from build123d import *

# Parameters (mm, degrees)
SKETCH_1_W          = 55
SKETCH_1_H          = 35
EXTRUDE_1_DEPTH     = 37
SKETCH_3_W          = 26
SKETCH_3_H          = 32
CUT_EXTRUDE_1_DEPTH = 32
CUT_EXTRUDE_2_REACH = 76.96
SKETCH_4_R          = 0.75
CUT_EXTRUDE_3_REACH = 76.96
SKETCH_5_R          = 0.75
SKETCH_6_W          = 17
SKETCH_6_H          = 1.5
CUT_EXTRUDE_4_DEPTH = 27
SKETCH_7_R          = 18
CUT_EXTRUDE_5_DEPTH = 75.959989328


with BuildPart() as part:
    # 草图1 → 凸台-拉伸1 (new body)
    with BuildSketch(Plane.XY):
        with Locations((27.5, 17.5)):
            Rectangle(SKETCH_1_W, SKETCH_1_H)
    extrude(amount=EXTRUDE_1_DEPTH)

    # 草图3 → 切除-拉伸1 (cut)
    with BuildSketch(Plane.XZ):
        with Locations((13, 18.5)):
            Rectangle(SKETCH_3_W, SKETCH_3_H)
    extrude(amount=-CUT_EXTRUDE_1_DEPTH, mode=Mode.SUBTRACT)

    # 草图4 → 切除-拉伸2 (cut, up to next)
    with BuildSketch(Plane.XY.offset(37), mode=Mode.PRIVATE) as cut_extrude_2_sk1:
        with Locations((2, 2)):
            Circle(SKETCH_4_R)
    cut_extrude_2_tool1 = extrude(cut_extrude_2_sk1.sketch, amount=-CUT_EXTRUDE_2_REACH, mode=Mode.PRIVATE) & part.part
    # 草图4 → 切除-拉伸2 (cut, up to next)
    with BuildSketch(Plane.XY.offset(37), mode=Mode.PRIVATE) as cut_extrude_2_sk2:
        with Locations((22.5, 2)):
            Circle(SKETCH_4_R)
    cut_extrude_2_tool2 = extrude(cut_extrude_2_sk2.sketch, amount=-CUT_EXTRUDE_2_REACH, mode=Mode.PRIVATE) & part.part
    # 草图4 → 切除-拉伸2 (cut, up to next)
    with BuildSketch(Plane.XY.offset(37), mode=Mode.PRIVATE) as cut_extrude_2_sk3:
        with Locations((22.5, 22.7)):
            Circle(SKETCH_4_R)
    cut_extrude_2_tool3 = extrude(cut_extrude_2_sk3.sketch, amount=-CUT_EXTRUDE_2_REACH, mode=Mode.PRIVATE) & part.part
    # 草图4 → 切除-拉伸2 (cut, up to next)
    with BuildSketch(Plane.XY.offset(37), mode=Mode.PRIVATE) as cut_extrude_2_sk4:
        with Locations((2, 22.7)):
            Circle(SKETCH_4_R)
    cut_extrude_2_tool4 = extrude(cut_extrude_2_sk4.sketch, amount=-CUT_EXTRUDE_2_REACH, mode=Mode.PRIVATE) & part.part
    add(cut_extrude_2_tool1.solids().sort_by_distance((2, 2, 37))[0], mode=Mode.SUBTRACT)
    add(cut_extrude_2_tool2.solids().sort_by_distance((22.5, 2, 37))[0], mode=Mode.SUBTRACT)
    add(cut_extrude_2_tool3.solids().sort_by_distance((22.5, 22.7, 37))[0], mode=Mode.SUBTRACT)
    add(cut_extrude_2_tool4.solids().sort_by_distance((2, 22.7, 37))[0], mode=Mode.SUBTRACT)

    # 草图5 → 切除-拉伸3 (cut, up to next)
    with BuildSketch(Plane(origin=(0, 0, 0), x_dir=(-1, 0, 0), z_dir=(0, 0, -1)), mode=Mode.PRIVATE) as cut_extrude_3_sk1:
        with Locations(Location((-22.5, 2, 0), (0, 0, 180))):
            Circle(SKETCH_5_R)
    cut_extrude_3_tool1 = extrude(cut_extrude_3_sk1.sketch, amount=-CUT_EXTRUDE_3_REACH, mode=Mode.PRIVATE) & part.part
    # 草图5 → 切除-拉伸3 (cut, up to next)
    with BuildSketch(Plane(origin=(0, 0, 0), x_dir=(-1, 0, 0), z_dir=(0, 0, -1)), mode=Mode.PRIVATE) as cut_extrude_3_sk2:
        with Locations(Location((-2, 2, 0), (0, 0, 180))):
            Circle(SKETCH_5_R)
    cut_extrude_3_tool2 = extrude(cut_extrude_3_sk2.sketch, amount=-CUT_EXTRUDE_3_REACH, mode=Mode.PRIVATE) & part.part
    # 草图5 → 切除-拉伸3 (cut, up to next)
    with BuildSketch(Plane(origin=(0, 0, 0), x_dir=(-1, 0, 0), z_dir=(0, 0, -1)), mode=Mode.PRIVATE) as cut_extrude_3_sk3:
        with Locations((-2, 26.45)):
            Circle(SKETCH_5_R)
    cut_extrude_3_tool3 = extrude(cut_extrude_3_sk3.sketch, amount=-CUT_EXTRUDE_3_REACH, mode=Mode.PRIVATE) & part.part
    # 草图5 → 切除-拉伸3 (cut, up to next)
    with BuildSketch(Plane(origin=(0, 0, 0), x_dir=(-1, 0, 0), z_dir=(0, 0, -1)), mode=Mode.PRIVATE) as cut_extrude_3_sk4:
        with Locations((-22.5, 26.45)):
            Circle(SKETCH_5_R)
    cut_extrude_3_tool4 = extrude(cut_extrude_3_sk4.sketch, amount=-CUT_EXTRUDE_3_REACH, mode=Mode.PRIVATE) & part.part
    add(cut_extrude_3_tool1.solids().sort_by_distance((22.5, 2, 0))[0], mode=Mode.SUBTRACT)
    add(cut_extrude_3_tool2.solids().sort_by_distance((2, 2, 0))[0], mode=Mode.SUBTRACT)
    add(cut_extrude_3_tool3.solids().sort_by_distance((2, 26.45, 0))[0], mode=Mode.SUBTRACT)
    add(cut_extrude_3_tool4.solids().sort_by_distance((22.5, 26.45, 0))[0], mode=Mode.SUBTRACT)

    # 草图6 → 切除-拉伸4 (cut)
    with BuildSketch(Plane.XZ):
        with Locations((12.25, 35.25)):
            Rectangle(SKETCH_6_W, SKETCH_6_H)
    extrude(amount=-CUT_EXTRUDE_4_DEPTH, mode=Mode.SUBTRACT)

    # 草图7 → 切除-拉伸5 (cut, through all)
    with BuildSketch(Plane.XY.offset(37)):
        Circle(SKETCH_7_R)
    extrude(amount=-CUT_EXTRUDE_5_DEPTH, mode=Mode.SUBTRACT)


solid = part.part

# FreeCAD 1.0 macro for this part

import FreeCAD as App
import Part
import Sketcher

doc = App.newDocument("Part")
params = doc.addObject("Spreadsheet::Sheet", "Params")
for row, (alias, value) in enumerate([
    ("sketch1_width", "55 mm"),
    ("sketch1_height", "35 mm"),
    ("pad1_length", "37 mm"),
    ("sketch2_width", "26 mm"),
    ("sketch2_height", "32 mm"),
    ("pocket1_length", "32 mm"),
    ("sketch3_diameter", "1.5 mm"),
    ("sketch4_diameter", "1.5 mm"),
    ("sketch5_diameter", "1.5 mm"),
    ("sketch6_diameter", "1.5 mm"),
    ("sketch7_diameter", "1.5 mm"),
    ("sketch8_diameter", "1.5 mm"),
    ("sketch9_diameter", "1.5 mm"),
    ("sketch10_diameter", "1.5 mm"),
    ("sketch11_width", "17 mm"),
    ("sketch11_height", "1.5 mm"),
    ("pocket10_length", "27 mm"),
    ("sketch12_diameter", "36 mm"),
], start=1):
    params.set(f"A{row}", alias)
    params.set(f"B{row}", "=" + value)
    params.setAlias(f"B{row}", alias)

body = doc.addObject("PartDesign::Body", "Body")

sketch1 = body.newObject("Sketcher::SketchObject", "Sketch")
sketch1.AttachmentSupport = (doc.getObject("XY_Plane"), [""])
sketch1.MapMode = "FlatFace"
sketch1.addGeometry([
    Part.LineSegment(App.Vector(0, 35, 0), App.Vector(0, 0, 0)),
    Part.LineSegment(App.Vector(0, 0, 0), App.Vector(55, 0, 0)),
    Part.LineSegment(App.Vector(55, 0, 0), App.Vector(55, 35, 0)),
    Part.LineSegment(App.Vector(55, 35, 0), App.Vector(0, 35, 0)),
], False)
sketch1.addConstraint([
    Sketcher.Constraint("Coincident", 0, 2, 1, 1),
    Sketcher.Constraint("Coincident", 1, 2, 2, 1),
    Sketcher.Constraint("Coincident", 2, 2, 3, 1),
    Sketcher.Constraint("Coincident", 3, 2, 0, 1),
    Sketcher.Constraint("Vertical", 0),
    Sketcher.Constraint("Horizontal", 1),
    Sketcher.Constraint("Vertical", 2),
    Sketcher.Constraint("Horizontal", 3),
    Sketcher.Constraint("Coincident", 0, 2, -1, 1),
    Sketcher.Constraint("DistanceX", 1, 1, 1, 2, 55.0),
    Sketcher.Constraint("DistanceY", 0, 2, 0, 1, 35.0),
])
sketch1.setExpression("Constraints[9]", "Params.sketch1_width")
sketch1.setExpression("Constraints[10]", "Params.sketch1_height")
pad1 = body.newObject("PartDesign::Pad", "Pad")
pad1.Profile = sketch1
pad1.setExpression("Length", "Params.pad1_length")

sketch2 = body.newObject("Sketcher::SketchObject", "Sketch001")
sketch2.AttachmentSupport = (doc.getObject("XZ_Plane"), [""])
sketch2.MapMode = "FlatFace"
sketch2.addGeometry([
    Part.LineSegment(App.Vector(0, 34, 0), App.Vector(0, 2, 0)),
    Part.LineSegment(App.Vector(0, 2, 0), App.Vector(26, 2, 0)),
    Part.LineSegment(App.Vector(26, 2, 0), App.Vector(26, 34, 0)),
    Part.LineSegment(App.Vector(26, 34, 0), App.Vector(0, 34, 0)),
], False)
sketch2.addConstraint([
    Sketcher.Constraint("Coincident", 0, 2, 1, 1),
    Sketcher.Constraint("Coincident", 1, 2, 2, 1),
    Sketcher.Constraint("Coincident", 2, 2, 3, 1),
    Sketcher.Constraint("Coincident", 3, 2, 0, 1),
    Sketcher.Constraint("Vertical", 0),
    Sketcher.Constraint("Horizontal", 1),
    Sketcher.Constraint("Vertical", 2),
    Sketcher.Constraint("Horizontal", 3),
    Sketcher.Constraint("PointOnObject", 0, 2, -2),
    Sketcher.Constraint("DistanceX", 1, 1, 1, 2, 26.0),
    Sketcher.Constraint("DistanceY", 0, 2, 0, 1, 32.0),
    Sketcher.Constraint("DistanceY", -1, 1, 0, 2, 2.5),
])
sketch2.setExpression("Constraints[9]", "Params.sketch2_width")
sketch2.setExpression("Constraints[10]", "Params.sketch2_height")
pocket1 = body.newObject("PartDesign::Pocket", "Pocket")
pocket1.Profile = sketch2
pocket1.setExpression("Length", "Params.pocket1_length")

sketch3 = body.newObject("Sketcher::SketchObject", "Sketch002")
sketch3.AttachmentSupport = (doc.getObject("XY_Plane"), [""])
sketch3.MapMode = "FlatFace"
sketch3.AttachmentOffset = App.Placement(App.Vector(0, 0, 37), App.Rotation())
sketch3.addGeometry(Part.Circle(App.Vector(2, 2, 0), App.Vector(0, 0, 1), 0.8), False)
sketch3.addConstraint([
    Sketcher.Constraint("Diameter", 0, 1.5),
    Sketcher.Constraint("DistanceX", -1, 1, 0, 3, 2.0),
    Sketcher.Constraint("DistanceY", -1, 1, 0, 3, 2.0),
])
sketch3.setExpression("Constraints[0]", "Params.sketch3_diameter")
pocket2 = body.newObject("PartDesign::Pocket", "Pocket001")
pocket2.Profile = sketch3
pocket2.Type = "UpToFirst"

sketch4 = body.newObject("Sketcher::SketchObject", "Sketch003")
sketch4.AttachmentSupport = (doc.getObject("XY_Plane"), [""])
sketch4.MapMode = "FlatFace"
sketch4.AttachmentOffset = App.Placement(App.Vector(0, 0, 37), App.Rotation())
sketch4.addGeometry(Part.Circle(App.Vector(22.5, 2, 0), App.Vector(0, 0, 1), 0.8), False)
sketch4.addConstraint([
    Sketcher.Constraint("Diameter", 0, 1.5),
    Sketcher.Constraint("DistanceY", -1, 1, 0, 3, 2.0),
    Sketcher.Constraint("DistanceX", -1, 1, 0, 3, 22.5),
])
sketch4.setExpression("Constraints[0]", "Params.sketch4_diameter")
pocket3 = body.newObject("PartDesign::Pocket", "Pocket002")
pocket3.Profile = sketch4
pocket3.Type = "UpToFirst"

sketch5 = body.newObject("Sketcher::SketchObject", "Sketch004")
sketch5.AttachmentSupport = (doc.getObject("XY_Plane"), [""])
sketch5.MapMode = "FlatFace"
sketch5.AttachmentOffset = App.Placement(App.Vector(0, 0, 37), App.Rotation())
sketch5.addGeometry(Part.Circle(App.Vector(22.5, 22.7, 0), App.Vector(0, 0, 1), 0.8), False)
sketch5.addConstraint([
    Sketcher.Constraint("Diameter", 0, 1.5),
    Sketcher.Constraint("DistanceX", -1, 1, 0, 3, 22.5),
    Sketcher.Constraint("DistanceY", -1, 1, 0, 3, 22.7),
])
sketch5.setExpression("Constraints[0]", "Params.sketch5_diameter")
pocket4 = body.newObject("PartDesign::Pocket", "Pocket003")
pocket4.Profile = sketch5
pocket4.Type = "UpToFirst"

sketch6 = body.newObject("Sketcher::SketchObject", "Sketch005")
sketch6.AttachmentSupport = (doc.getObject("XY_Plane"), [""])
sketch6.MapMode = "FlatFace"
sketch6.AttachmentOffset = App.Placement(App.Vector(0, 0, 37), App.Rotation())
sketch6.addGeometry(Part.Circle(App.Vector(2, 22.7, 0), App.Vector(0, 0, 1), 0.8), False)
sketch6.addConstraint([
    Sketcher.Constraint("Diameter", 0, 1.5),
    Sketcher.Constraint("DistanceX", -1, 1, 0, 3, 2.0),
    Sketcher.Constraint("DistanceY", -1, 1, 0, 3, 22.7),
])
sketch6.setExpression("Constraints[0]", "Params.sketch6_diameter")
pocket5 = body.newObject("PartDesign::Pocket", "Pocket004")
pocket5.Profile = sketch6
pocket5.Type = "UpToFirst"

sketch7 = body.newObject("Sketcher::SketchObject", "Sketch006")
sketch7.AttachmentSupport = (doc.getObject("XY_Plane"), [""])
sketch7.MapMode = "FlatFace"
sketch7.addGeometry(Part.Circle(App.Vector(22.5, 2, 0), App.Vector(0, 0, 1), 0.8), False)
sketch7.addConstraint([
    Sketcher.Constraint("Diameter", 0, 1.5),
    Sketcher.Constraint("DistanceY", -1, 1, 0, 3, 2.0),
    Sketcher.Constraint("DistanceX", -1, 1, 0, 3, 22.5),
])
sketch7.setExpression("Constraints[0]", "Params.sketch7_diameter")
pocket6 = body.newObject("PartDesign::Pocket", "Pocket005")
pocket6.Profile = sketch7
pocket6.Type = "UpToFirst"
pocket6.Reversed = True

sketch8 = body.newObject("Sketcher::SketchObject", "Sketch007")
sketch8.AttachmentSupport = (doc.getObject("XY_Plane"), [""])
sketch8.MapMode = "FlatFace"
sketch8.addGeometry(Part.Circle(App.Vector(2, 2, 0), App.Vector(0, 0, 1), 0.8), False)
sketch8.addConstraint([
    Sketcher.Constraint("Diameter", 0, 1.5),
    Sketcher.Constraint("DistanceX", -1, 1, 0, 3, 2.0),
    Sketcher.Constraint("DistanceY", -1, 1, 0, 3, 2.0),
])
sketch8.setExpression("Constraints[0]", "Params.sketch8_diameter")
pocket7 = body.newObject("PartDesign::Pocket", "Pocket006")
pocket7.Profile = sketch8
pocket7.Type = "UpToFirst"
pocket7.Reversed = True

sketch9 = body.newObject("Sketcher::SketchObject", "Sketch008")
sketch9.AttachmentSupport = (doc.getObject("XY_Plane"), [""])
sketch9.MapMode = "FlatFace"
sketch9.addGeometry(Part.Circle(App.Vector(2, 26.4, 0), App.Vector(0, 0, 1), 0.8), False)
sketch9.addConstraint([
    Sketcher.Constraint("Diameter", 0, 1.5),
    Sketcher.Constraint("DistanceX", -1, 1, 0, 3, 2.0),
    Sketcher.Constraint("DistanceY", -1, 1, 0, 3, 26.45),
])
sketch9.setExpression("Constraints[0]", "Params.sketch9_diameter")
pocket8 = body.newObject("PartDesign::Pocket", "Pocket007")
pocket8.Profile = sketch9
pocket8.Type = "UpToFirst"
pocket8.Reversed = True

sketch10 = body.newObject("Sketcher::SketchObject", "Sketch009")
sketch10.AttachmentSupport = (doc.getObject("XY_Plane"), [""])
sketch10.MapMode = "FlatFace"
sketch10.addGeometry(Part.Circle(App.Vector(22.5, 26.4, 0), App.Vector(0, 0, 1), 0.8), False)
sketch10.addConstraint([
    Sketcher.Constraint("Diameter", 0, 1.5),
    Sketcher.Constraint("DistanceX", -1, 1, 0, 3, 22.5),
    Sketcher.Constraint("DistanceY", -1, 1, 0, 3, 26.45),
])
sketch10.setExpression("Constraints[0]", "Params.sketch10_diameter")
pocket9 = body.newObject("PartDesign::Pocket", "Pocket008")
pocket9.Profile = sketch10
pocket9.Type = "UpToFirst"
pocket9.Reversed = True

sketch11 = body.newObject("Sketcher::SketchObject", "Sketch010")
sketch11.AttachmentSupport = (doc.getObject("XZ_Plane"), [""])
sketch11.MapMode = "FlatFace"
sketch11.addGeometry([
    Part.LineSegment(App.Vector(3.8, 36, 0), App.Vector(3.8, 34.5, 0)),
    Part.LineSegment(App.Vector(3.8, 34.5, 0), App.Vector(20.8, 34.5, 0)),
    Part.LineSegment(App.Vector(20.8, 34.5, 0), App.Vector(20.8, 36, 0)),
    Part.LineSegment(App.Vector(20.8, 36, 0), App.Vector(3.8, 36, 0)),
], False)
sketch11.addConstraint([
    Sketcher.Constraint("Coincident", 0, 2, 1, 1),
    Sketcher.Constraint("Coincident", 1, 2, 2, 1),
    Sketcher.Constraint("Coincident", 2, 2, 3, 1),
    Sketcher.Constraint("Coincident", 3, 2, 0, 1),
    Sketcher.Constraint("Vertical", 0),
    Sketcher.Constraint("Horizontal", 1),
    Sketcher.Constraint("Vertical", 2),
    Sketcher.Constraint("Horizontal", 3),
    Sketcher.Constraint("DistanceX", 1, 1, 1, 2, 17.0),
    Sketcher.Constraint("DistanceY", 0, 2, 0, 1, 1.5),
    Sketcher.Constraint("DistanceY", -1, 1, 2, 2, 36.0),
    Sketcher.Constraint("DistanceX", -1, 1, 0, 2, 3.75),
])
sketch11.setExpression("Constraints[8]", "Params.sketch11_width")
sketch11.setExpression("Constraints[9]", "Params.sketch11_height")
pocket10 = body.newObject("PartDesign::Pocket", "Pocket009")
pocket10.Profile = sketch11
pocket10.setExpression("Length", "Params.pocket10_length")

sketch12 = body.newObject("Sketcher::SketchObject", "Sketch011")
sketch12.AttachmentSupport = (doc.getObject("XY_Plane"), [""])
sketch12.MapMode = "FlatFace"
sketch12.AttachmentOffset = App.Placement(App.Vector(0, 0, 37), App.Rotation())
sketch12.addGeometry(Part.Circle(App.Vector(0, 0, 0), App.Vector(0, 0, 1), 18), False)
sketch12.addConstraint([
    Sketcher.Constraint("Coincident", 0, 3, -1, 1),
    Sketcher.Constraint("Diameter", 0, 36.0),
])
sketch12.setExpression("Constraints[1]", "Params.sketch12_diameter")
pocket11 = body.newObject("PartDesign::Pocket", "Pocket010")
pocket11.Profile = sketch12
pocket11.Type = "ThroughAll"

doc.recompute()
